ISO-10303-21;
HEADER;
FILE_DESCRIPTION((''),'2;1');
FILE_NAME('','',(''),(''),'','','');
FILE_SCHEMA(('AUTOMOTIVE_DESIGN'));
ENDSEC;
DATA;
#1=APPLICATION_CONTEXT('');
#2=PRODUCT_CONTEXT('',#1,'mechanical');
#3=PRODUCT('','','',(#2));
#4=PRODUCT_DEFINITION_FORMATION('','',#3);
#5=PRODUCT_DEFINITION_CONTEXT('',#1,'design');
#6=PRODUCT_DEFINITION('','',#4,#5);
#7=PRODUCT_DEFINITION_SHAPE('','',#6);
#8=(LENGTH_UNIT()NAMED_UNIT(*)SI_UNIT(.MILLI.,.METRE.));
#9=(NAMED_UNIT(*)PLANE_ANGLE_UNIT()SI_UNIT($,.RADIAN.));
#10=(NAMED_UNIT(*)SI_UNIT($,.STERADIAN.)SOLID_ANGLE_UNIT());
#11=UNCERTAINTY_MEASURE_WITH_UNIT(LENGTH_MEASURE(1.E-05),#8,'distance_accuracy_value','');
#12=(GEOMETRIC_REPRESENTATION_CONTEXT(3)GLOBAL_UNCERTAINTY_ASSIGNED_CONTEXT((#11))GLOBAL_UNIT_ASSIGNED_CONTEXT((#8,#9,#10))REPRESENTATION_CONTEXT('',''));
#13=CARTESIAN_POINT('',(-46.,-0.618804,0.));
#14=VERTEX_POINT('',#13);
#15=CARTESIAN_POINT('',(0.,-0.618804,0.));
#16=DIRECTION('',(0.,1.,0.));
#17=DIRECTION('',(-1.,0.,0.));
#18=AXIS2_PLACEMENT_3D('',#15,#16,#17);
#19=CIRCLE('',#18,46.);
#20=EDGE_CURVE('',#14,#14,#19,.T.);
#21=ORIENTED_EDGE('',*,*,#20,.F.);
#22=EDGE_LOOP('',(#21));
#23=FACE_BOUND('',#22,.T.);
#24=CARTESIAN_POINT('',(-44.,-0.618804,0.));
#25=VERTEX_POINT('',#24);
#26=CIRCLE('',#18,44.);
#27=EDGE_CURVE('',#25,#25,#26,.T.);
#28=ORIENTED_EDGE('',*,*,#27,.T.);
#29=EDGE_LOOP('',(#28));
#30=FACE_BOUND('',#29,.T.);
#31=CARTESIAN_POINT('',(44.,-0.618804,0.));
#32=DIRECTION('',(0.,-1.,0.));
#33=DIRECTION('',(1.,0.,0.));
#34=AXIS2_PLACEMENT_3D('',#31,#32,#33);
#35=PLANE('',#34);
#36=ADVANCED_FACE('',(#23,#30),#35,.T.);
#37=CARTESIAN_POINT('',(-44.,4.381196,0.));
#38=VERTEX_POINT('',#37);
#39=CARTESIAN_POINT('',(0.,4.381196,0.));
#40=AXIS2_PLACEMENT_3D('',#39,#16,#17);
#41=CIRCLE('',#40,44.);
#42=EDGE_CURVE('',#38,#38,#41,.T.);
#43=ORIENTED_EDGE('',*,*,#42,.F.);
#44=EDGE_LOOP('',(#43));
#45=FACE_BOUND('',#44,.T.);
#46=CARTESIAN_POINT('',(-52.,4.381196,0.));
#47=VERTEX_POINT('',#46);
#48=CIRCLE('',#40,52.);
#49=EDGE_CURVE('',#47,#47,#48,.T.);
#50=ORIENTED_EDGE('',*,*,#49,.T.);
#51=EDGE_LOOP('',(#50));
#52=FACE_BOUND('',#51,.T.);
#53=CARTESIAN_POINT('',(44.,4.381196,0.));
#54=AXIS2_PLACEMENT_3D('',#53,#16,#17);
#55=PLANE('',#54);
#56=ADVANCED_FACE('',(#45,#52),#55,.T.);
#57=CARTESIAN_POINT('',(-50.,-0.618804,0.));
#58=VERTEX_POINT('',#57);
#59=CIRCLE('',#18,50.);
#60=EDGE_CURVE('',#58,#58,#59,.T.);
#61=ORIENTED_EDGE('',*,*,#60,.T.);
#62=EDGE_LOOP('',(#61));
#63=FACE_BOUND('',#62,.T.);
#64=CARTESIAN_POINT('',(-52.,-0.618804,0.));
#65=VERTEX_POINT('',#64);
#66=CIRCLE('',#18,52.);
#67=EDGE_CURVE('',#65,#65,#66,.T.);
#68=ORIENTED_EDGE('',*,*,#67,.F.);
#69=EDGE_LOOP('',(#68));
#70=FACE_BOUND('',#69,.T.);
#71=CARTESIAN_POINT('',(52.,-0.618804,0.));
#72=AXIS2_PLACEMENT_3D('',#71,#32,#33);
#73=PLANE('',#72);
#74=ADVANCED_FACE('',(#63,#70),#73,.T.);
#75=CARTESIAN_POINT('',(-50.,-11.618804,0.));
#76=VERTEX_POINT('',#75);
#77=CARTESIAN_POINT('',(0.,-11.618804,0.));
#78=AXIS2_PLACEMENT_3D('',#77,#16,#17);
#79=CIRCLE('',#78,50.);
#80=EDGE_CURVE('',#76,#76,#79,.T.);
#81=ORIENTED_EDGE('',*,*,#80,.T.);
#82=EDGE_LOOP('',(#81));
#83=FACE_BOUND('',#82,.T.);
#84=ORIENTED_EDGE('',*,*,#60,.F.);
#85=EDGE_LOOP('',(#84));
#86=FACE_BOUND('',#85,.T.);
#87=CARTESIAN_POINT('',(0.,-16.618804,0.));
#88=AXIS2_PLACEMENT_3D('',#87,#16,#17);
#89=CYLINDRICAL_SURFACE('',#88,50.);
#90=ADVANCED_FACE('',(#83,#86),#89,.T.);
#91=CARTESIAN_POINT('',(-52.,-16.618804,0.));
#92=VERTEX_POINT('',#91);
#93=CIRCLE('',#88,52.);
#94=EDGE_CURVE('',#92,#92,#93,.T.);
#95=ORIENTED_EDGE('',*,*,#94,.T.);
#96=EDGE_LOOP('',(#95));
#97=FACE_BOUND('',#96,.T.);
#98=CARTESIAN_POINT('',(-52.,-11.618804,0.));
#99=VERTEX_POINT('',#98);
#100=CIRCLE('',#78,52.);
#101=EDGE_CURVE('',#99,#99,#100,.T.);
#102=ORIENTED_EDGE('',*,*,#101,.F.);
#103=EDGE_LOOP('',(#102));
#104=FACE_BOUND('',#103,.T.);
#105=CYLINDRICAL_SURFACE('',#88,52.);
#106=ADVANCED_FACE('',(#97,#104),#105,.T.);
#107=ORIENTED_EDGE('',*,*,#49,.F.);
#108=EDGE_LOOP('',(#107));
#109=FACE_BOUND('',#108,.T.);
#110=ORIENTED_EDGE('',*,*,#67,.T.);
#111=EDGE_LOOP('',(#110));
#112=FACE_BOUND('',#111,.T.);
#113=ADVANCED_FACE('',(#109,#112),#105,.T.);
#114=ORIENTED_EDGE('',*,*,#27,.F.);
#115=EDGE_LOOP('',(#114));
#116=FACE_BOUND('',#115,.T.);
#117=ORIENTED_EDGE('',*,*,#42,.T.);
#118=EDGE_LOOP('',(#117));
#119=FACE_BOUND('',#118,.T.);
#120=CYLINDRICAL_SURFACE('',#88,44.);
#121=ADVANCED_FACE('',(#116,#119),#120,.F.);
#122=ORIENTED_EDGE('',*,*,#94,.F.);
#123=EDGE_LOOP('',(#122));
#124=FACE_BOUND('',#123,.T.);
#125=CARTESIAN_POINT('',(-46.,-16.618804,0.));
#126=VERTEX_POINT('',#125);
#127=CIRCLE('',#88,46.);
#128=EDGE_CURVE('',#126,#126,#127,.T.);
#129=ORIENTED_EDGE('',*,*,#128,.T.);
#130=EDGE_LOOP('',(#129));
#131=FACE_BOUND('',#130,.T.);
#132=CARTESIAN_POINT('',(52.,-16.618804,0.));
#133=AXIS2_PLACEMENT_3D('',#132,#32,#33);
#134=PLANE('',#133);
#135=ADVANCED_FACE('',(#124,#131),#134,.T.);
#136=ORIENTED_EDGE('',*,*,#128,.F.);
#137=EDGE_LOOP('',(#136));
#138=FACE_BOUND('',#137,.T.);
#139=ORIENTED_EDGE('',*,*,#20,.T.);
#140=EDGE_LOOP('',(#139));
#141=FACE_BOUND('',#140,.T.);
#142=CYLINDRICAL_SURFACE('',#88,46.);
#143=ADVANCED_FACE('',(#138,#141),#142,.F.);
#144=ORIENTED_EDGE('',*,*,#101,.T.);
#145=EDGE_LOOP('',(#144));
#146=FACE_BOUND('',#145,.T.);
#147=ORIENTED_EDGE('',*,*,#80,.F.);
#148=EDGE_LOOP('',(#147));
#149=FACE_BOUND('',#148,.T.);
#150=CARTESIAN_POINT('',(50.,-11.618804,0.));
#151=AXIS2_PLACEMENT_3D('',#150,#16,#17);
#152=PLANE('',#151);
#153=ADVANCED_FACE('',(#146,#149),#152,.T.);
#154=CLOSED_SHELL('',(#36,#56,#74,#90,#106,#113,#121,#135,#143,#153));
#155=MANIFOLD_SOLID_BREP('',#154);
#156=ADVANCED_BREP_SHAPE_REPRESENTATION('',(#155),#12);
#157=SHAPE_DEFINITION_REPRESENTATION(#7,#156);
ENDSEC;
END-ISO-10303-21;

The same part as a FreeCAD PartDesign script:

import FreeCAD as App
import Part
import Sketcher

V = App.Vector


def add_polygon(sketch, points):
    """Adds a closed chain of lines whose ends are joined by coincident constraints."""
    first, n = sketch.GeometryCount, len(points)
    for a, b in zip(points, points[1:] + points[:1]):
        sketch.addGeometry(Part.LineSegment(App.Vector(*a, 0), App.Vector(*b, 0)), False)
    for i in range(n):
        sketch.addConstraint(Sketcher.Constraint("Coincident", first + i, 2, first + (i + 1) % n, 1))

doc = App.newDocument("Part")
body = doc.addObject("PartDesign::Body", "Body")

# Sketch on XY plane
sketch1 = doc.addObject("Sketcher::SketchObject", "Sketch")
body.addObject(sketch1)
sketch1.AttachmentSupport = (doc.XY_Plane, [""])
sketch1.MapMode = "FlatFace"
add_polygon(sketch1, [(44, -0.6), (44, 4.4), (52, 4.4), (52, -0.6), (50, -0.6), (50, -11.6), (52, -11.6), (52, -16.6), (46, -16.6), (46, -0.6)])  # lines 0-9
sketch1.addConstraint([
    Sketcher.Constraint("Vertical", 0),
    Sketcher.Constraint("Horizontal", 1),
    Sketcher.Constraint("Vertical", 2),
    Sketcher.Constraint("Horizontal", 3),
    Sketcher.Constraint("Vertical", 4),
    Sketcher.Constraint("Horizontal", 5),
    Sketcher.Constraint("Vertical", 6),
    Sketcher.Constraint("Horizontal", 7),
    Sketcher.Constraint("Vertical", 8),
    Sketcher.Constraint("Horizontal", 9),
    Sketcher.Constraint("Horizontal", 3, 2, 8, 2),
    Sketcher.Constraint("Vertical", 2, 2, 5, 2),
    Sketcher.Constraint("Equal", 5, 9),
    Sketcher.Constraint("Equal", 2, 6),
    Sketcher.Constraint("DistanceX", 1, 1, 1, 2, 8.0),
    Sketcher.Constraint("DistanceX", 3, 2, 3, 1, 2.0),
    Sketcher.Constraint("DistanceY", 0, 1, 0, 2, 5.0),
    Sketcher.Constraint("DistanceY", 4, 2, 4, 1, 11.0),
    Sketcher.Constraint("DistanceX", -1, 1, 0, 2, 44.0),
    Sketcher.Constraint("DistanceY", -1, 1, 0, 2, 4.381196),
])
revolution = doc.addObject("PartDesign::Revolution", "Revolution")
body.addObject(revolution)
revolution.Profile = sketch1
revolution.ReferenceAxis = (sketch1, ["V_Axis"])
revolution.Angle = 360

doc.recompute()
